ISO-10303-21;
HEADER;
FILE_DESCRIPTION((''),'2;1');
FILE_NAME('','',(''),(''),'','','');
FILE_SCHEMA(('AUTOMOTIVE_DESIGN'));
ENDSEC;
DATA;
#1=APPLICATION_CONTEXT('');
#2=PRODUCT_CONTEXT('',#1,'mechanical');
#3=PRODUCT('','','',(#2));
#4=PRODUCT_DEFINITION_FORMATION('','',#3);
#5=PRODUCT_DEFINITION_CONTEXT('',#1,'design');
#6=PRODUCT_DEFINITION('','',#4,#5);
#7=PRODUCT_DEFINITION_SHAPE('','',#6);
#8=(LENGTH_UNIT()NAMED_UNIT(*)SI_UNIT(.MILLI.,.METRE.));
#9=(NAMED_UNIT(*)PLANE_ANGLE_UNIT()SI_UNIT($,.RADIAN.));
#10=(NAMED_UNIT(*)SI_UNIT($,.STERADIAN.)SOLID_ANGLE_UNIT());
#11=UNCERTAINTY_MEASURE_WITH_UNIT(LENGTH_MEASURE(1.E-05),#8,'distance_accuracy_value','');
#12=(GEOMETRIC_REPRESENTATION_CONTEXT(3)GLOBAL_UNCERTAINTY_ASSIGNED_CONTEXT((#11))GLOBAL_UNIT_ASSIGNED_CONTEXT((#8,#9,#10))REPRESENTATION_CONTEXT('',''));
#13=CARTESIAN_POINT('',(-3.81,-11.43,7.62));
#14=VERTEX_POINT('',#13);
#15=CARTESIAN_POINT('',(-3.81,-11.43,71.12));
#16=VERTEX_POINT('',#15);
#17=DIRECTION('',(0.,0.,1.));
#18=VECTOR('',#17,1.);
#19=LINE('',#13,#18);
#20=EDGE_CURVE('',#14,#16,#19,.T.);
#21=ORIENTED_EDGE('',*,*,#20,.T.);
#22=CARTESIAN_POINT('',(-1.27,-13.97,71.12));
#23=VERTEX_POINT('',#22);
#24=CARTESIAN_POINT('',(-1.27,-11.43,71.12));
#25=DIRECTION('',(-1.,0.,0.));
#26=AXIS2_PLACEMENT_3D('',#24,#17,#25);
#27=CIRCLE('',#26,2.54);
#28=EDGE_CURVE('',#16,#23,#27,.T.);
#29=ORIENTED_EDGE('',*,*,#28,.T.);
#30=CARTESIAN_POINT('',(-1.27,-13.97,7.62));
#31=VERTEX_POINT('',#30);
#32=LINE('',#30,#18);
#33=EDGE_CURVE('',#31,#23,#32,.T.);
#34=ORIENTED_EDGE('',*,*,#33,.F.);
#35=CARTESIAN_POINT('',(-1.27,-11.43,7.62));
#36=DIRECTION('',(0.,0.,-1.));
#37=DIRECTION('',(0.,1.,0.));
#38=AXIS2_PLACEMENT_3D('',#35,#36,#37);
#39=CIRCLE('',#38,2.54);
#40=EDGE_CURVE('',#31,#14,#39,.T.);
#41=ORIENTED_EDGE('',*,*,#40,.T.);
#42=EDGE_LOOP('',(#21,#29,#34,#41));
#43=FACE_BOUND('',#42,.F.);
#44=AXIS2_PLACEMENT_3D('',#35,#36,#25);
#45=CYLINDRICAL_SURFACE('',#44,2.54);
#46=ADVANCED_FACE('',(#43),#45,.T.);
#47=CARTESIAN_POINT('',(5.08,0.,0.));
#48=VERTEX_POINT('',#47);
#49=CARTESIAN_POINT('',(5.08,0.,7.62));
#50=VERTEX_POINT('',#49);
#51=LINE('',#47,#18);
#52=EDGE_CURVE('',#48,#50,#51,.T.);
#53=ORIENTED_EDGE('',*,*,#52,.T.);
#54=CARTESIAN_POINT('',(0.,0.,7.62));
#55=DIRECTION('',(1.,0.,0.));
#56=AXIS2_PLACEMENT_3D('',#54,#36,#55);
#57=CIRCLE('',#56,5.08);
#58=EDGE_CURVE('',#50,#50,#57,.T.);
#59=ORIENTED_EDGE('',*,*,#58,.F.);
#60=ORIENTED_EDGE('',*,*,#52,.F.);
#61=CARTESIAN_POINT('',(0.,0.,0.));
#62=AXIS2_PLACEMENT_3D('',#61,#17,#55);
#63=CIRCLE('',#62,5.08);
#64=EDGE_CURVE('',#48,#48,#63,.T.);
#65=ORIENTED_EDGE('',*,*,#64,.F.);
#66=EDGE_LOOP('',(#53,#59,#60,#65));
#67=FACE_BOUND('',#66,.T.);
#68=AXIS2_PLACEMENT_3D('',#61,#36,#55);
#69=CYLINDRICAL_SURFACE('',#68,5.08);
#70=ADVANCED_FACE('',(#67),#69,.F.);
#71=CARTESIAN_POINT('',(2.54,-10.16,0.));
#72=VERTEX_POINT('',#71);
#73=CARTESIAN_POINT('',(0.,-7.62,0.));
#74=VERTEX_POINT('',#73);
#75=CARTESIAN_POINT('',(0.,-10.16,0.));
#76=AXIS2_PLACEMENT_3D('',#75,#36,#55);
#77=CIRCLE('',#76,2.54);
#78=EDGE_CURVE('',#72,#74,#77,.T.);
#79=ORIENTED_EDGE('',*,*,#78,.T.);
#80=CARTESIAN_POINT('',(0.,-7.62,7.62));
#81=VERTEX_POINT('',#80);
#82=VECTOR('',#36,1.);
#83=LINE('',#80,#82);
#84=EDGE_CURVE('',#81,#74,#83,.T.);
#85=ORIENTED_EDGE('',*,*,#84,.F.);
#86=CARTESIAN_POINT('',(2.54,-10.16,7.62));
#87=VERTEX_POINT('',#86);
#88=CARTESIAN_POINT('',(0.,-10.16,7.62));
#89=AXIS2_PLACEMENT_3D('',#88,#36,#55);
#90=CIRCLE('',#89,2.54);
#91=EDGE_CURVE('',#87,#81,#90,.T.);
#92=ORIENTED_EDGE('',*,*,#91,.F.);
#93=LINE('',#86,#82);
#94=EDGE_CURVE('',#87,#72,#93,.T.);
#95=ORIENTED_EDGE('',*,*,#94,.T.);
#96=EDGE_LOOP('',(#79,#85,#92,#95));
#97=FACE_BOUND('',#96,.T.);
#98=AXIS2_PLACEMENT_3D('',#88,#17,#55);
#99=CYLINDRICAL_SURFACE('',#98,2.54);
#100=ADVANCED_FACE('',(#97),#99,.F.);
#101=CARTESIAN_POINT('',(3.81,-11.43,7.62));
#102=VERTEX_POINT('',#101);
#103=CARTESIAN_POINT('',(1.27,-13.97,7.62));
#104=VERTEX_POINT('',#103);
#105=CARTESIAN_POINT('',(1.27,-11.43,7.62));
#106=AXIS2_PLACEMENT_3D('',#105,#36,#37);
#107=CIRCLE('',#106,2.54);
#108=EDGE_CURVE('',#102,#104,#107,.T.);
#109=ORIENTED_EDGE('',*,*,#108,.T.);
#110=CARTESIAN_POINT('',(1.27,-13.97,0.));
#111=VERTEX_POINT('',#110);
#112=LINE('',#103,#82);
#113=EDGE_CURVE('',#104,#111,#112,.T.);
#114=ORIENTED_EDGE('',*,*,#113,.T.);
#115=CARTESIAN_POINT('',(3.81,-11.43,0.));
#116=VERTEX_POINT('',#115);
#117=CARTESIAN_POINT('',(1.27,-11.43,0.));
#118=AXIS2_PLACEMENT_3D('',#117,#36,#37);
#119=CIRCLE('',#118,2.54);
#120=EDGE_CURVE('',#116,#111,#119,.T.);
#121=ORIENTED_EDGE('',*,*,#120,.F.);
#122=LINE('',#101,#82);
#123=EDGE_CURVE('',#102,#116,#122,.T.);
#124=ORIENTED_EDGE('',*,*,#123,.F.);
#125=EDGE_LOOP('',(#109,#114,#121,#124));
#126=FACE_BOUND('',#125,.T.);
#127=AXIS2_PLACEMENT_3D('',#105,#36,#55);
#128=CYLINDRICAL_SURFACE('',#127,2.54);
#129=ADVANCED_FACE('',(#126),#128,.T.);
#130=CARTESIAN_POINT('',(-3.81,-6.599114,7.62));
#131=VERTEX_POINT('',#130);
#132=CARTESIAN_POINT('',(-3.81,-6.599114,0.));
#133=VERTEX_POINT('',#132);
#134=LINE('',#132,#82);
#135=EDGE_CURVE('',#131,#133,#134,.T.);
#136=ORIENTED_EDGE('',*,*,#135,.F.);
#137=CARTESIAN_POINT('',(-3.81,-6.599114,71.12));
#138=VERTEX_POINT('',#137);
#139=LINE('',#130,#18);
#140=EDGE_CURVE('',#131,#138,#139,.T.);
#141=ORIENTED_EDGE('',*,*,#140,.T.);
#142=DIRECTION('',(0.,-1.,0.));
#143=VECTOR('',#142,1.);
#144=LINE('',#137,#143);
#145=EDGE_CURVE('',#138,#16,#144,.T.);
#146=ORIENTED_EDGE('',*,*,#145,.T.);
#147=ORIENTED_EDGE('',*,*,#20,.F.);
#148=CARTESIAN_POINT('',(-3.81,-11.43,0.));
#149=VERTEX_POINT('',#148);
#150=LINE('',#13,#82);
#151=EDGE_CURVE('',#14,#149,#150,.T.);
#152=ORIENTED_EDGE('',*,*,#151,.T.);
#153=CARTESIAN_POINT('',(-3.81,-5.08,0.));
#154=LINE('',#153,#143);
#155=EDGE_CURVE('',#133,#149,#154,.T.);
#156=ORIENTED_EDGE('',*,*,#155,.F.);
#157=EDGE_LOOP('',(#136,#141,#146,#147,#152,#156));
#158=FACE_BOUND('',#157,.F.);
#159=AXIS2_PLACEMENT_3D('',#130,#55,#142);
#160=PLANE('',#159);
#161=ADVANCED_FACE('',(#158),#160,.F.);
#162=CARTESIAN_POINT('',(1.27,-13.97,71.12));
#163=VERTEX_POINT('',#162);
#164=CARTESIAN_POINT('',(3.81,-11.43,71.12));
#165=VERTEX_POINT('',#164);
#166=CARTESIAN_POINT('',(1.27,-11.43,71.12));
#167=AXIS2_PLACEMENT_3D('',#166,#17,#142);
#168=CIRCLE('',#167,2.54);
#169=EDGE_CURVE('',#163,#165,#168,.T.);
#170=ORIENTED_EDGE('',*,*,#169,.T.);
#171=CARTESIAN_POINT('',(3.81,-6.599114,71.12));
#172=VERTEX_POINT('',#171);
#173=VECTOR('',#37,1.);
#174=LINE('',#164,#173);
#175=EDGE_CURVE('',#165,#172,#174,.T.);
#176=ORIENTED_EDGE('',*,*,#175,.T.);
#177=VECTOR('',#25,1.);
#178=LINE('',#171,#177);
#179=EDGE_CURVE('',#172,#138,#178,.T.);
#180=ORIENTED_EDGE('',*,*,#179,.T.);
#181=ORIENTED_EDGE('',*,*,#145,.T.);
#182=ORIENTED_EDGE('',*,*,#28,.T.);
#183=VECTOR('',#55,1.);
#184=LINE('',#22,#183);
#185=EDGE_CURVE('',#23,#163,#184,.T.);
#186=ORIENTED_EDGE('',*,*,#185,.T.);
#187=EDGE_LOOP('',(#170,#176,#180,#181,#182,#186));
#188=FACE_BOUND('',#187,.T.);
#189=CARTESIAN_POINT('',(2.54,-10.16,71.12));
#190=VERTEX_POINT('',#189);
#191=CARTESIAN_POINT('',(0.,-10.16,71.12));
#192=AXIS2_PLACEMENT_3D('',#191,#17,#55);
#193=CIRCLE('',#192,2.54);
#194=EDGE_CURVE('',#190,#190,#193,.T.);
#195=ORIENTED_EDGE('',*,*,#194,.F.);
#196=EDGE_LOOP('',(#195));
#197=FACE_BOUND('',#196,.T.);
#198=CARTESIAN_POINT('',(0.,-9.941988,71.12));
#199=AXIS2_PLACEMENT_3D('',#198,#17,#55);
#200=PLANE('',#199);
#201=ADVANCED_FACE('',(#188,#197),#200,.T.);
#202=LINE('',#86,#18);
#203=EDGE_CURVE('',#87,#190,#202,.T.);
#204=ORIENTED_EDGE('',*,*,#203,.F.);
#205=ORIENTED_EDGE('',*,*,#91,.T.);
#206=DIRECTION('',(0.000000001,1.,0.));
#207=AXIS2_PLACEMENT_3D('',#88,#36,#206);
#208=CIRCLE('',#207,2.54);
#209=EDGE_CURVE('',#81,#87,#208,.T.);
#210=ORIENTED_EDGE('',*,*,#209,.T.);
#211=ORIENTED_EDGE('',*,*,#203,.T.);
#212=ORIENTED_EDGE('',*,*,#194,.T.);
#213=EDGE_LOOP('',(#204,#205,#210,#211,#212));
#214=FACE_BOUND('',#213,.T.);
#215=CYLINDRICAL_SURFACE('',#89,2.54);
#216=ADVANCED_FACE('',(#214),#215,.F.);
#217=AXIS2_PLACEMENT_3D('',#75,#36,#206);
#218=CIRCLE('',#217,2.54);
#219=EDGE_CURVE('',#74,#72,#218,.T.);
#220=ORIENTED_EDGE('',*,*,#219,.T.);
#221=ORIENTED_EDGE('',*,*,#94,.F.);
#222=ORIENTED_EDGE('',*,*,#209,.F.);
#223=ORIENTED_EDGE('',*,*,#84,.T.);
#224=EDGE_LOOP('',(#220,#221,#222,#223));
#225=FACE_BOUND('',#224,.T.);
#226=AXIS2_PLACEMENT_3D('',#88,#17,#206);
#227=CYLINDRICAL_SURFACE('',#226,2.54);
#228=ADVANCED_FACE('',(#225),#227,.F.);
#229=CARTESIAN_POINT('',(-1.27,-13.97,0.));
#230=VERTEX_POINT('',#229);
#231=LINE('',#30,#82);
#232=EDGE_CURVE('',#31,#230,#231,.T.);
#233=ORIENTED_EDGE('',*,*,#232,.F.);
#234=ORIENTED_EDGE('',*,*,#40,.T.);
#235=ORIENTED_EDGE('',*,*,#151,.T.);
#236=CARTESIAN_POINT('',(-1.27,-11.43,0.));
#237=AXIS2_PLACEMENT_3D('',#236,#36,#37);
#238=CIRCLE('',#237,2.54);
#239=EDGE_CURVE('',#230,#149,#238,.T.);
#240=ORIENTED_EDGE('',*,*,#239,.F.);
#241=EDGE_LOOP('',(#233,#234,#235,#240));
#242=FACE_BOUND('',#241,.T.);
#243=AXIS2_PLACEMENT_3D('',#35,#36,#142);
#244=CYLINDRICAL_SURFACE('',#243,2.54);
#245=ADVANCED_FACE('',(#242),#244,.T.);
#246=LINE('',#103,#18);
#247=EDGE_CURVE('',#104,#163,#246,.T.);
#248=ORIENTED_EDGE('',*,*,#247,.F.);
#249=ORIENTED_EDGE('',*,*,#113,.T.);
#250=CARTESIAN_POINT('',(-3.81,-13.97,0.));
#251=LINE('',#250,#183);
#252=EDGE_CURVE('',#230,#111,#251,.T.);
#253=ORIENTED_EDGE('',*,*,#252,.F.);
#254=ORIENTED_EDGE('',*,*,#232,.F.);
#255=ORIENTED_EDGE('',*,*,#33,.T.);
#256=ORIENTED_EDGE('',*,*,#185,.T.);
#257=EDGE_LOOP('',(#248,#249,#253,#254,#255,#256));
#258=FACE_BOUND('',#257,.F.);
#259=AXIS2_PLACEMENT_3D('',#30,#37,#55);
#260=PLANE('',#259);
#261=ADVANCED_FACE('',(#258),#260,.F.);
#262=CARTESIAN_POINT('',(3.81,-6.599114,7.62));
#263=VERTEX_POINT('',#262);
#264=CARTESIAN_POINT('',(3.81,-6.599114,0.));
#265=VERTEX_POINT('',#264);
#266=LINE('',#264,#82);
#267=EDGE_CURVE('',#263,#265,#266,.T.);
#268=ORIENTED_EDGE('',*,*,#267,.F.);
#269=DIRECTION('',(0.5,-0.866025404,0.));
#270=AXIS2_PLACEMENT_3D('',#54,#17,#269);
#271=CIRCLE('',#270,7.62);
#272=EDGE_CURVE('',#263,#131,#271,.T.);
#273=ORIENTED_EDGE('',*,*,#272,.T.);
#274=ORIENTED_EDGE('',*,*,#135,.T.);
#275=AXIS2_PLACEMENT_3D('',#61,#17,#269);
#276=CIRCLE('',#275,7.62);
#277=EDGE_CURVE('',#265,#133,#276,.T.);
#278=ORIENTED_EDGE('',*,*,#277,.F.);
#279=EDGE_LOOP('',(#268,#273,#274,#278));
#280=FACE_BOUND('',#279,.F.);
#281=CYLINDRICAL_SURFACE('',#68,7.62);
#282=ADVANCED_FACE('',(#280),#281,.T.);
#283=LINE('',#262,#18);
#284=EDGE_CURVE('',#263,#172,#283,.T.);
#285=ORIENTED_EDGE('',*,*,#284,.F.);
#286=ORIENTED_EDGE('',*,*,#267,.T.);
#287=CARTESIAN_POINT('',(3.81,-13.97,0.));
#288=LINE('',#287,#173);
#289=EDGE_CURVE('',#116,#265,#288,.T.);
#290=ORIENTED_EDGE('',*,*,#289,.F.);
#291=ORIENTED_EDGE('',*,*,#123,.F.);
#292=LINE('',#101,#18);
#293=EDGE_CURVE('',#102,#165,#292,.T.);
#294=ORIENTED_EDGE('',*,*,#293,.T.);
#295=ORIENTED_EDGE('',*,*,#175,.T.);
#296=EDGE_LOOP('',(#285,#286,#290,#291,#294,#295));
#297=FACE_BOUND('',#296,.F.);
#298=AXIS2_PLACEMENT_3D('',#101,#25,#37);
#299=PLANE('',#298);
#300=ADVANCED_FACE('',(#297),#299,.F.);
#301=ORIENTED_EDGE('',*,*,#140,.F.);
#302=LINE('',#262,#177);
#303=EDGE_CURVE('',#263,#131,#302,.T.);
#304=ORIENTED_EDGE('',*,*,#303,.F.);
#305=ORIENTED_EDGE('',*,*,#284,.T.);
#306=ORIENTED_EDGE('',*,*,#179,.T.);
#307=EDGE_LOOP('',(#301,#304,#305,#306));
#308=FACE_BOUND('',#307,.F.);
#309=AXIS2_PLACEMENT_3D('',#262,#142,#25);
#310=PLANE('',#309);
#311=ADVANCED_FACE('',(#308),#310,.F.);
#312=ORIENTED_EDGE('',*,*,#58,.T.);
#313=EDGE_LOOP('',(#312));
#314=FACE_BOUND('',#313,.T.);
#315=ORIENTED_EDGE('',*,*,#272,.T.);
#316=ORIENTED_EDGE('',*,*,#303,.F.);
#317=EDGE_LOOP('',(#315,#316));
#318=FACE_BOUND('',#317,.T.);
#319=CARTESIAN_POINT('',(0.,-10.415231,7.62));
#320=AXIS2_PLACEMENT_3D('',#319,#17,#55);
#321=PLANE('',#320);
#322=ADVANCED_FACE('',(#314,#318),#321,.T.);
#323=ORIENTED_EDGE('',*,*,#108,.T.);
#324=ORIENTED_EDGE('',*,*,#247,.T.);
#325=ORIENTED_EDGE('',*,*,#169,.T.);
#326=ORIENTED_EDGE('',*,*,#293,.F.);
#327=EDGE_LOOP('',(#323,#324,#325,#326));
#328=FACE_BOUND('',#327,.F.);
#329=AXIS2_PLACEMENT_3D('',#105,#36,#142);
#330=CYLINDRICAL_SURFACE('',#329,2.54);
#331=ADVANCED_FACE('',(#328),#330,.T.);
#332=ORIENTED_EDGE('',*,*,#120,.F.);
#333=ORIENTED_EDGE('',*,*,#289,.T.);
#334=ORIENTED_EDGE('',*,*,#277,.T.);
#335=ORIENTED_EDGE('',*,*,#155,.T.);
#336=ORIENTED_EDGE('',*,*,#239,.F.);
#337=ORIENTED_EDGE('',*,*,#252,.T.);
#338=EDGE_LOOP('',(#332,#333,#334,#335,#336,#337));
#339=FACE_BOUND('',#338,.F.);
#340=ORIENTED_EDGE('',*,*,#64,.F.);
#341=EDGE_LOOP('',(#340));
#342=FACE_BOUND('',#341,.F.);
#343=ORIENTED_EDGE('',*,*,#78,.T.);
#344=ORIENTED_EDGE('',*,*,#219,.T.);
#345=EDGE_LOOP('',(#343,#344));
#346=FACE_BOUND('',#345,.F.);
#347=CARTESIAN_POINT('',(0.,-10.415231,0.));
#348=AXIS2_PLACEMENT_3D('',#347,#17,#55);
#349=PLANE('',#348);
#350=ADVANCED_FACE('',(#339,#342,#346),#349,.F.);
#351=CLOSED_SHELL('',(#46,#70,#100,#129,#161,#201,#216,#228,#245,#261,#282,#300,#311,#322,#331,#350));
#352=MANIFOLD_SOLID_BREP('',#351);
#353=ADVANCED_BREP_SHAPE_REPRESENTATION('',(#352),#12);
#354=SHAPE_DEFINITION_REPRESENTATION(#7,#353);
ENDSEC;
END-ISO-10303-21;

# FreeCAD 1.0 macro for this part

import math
import FreeCAD as App
import Part
import Sketcher

V = App.Vector
Q = App.Units.Quantity


def edges_at(feature, points):
    """Names of the edges that pass closest to the given points."""
    edges = feature.Shape.Edges
    near = lambda p: min(range(len(edges)), key=lambda i: edges[i].distToShape(Part.Vertex(*p))[0])
    return sorted({f"Edge{near(p) + 1}" for p in points})

doc = App.newDocument("Part")
params = doc.addObject("Spreadsheet::Sheet", "Params")
for row, (alias, value) in enumerate([
    ("sketch1_diameter", "0.6 in"),
    ("sketch1_diameter2", "0.4 in"),
    ("pad1_length", "0.3 in"),
    ("sketch2_radius", "0.1 in"),
    ("sketch2_width", "0.3 in"),
    ("sketch2_height", "0.35 in"),
    ("pad2_length", "0.3 in"),
    ("fillet_radius", "0.1 in"),
    ("sketch3_diameter", "0.2 in"),
    ("sketch3_width", "0.3 in"),
    ("pad3_length", "2.5 in"),
], start=1):
    params.set(f"A{row}", alias)
    params.set(f"B{row}", "=" + value)
    params.setAlias(f"B{row}", alias)

body = doc.addObject("PartDesign::Body", "Body")

# Sketch on XY plane
sketch1 = body.newObject("Sketcher::SketchObject", "Sketch")
sketch1.AttachmentSupport = (doc.getObject("XY_Plane"), [""])
sketch1.MapMode = "FlatFace"
sketch1.addGeometry([
    Part.Circle(V(0, 0, 0), V(0, 0, 1), 8),
    Part.Circle(V(0, 0, 0), V(0, 0, 1), 5),
], False)
sketch1.addConstraint([
    Sketcher.Constraint("Coincident", 0, 3, -1, 1),
    Sketcher.Constraint("Coincident", 1, 3, -1, 1),
    Sketcher.Constraint("Diameter", 0, Q("0.6 in")),
    Sketcher.Constraint("Diameter", 1, Q("0.4 in")),
])
sketch1.setExpression("Constraints[2]", "Params.sketch1_diameter")
sketch1.setExpression("Constraints[3]", "Params.sketch1_diameter2")
pad1 = body.newObject("PartDesign::Pad", "Pad")
pad1.Profile = sketch1
pad1.setExpression("Length", "Params.pad1_length")

# Sketch on XY plane
sketch2 = body.newObject("Sketcher::SketchObject", "Sketch001")
sketch2.AttachmentSupport = (doc.getObject("XY_Plane"), [""])
sketch2.MapMode = "FlatFace"
sketch2.AttachmentOffset = App.Placement(V(0, 0, 0.3 * 25.4), App.Rotation())
sketch2.addGeometry([
    Part.LineSegment(V(3.8, -14, 0), V(3.8, -5.1, 0)),  # 0
    Part.LineSegment(V(3.8, -5.1, 0), V(-3.8, -5.1, 0)),  # 1
    Part.LineSegment(V(-3.8, -5.1, 0), V(-3.8, -14, 0)),  # 2
    Part.LineSegment(V(-3.8, -14, 0), V(3.8, -14, 0)),  # 3
    Part.ArcOfCircle(Part.Circle(V(0, -10.2, 0), V(0, 0, 1), 2.5), math.radians(90), math.radians(360)),  # 4
    Part.ArcOfCircle(Part.Circle(V(0, -10.2, 0), V(0, 0, 1), 2.5), math.radians(0), math.radians(90)),  # 5
], False)
sketch2.addConstraint([
    Sketcher.Constraint("Coincident", 0, 2, 1, 1),
    Sketcher.Constraint("Coincident", 1, 2, 2, 1),
    Sketcher.Constraint("Coincident", 2, 2, 3, 1),
    Sketcher.Constraint("Coincident", 3, 2, 0, 1),
    Sketcher.Constraint("Tangent", 4, 1, 5, 2),
    Sketcher.Constraint("Coincident", 5, 1, 4, 2),
    Sketcher.Constraint("Vertical", 0),
    Sketcher.Constraint("Horizontal", 1),
    Sketcher.Constraint("Vertical", 2),
    Sketcher.Constraint("Horizontal", 3),
    Sketcher.Constraint("PointOnObject", 4, 3, -2),
    Sketcher.Constraint("PointOnObject", 4, 1, -2),
    Sketcher.Constraint("Horizontal", 4, 3, 5, 1),
    Sketcher.Constraint("Radius", 4, Q("0.1 in")),
    Sketcher.Constraint("DistanceX", 1, 2, 1, 1, Q("0.3 in")),
    Sketcher.Constraint("DistanceY", 0, 1, 0, 2, Q("0.35 in")),
    Sketcher.Constraint("DistanceY", 4, 3, -1, 1, Q("0.4 in")),
    Sketcher.Constraint("DistanceY", 0, 2, -1, 1, Q("0.2 in")),
    Sketcher.Constraint("DistanceX", -1, 1, 0, 2, Q("0.15 in")),
])
sketch2.setExpression("Constraints[13]", "Params.sketch2_radius")
sketch2.setExpression("Constraints[14]", "Params.sketch2_width")
sketch2.setExpression("Constraints[15]", "Params.sketch2_height")
pad2 = body.newObject("PartDesign::Pad", "Pad001")
pad2.Profile = sketch2
pad2.setExpression("Length", "Params.pad2_length")
pad2.Reversed = True
doc.recompute()

fillet = body.newObject("PartDesign::Fillet", "Fillet")
fillet.Base = (pad2, edges_at(pad2, [(3.81, -13.97, 3.81), (-3.81, -13.97, 3.81)]))
fillet.setExpression("Radius", "Params.fillet_radius")

# Sketch on XY plane
sketch3 = body.newObject("Sketcher::SketchObject", "Sketch002")
sketch3.AttachmentSupport = (doc.getObject("XY_Plane"), [""])
sketch3.MapMode = "FlatFace"
sketch3.AttachmentOffset = App.Placement(V(0, 0, 0.3 * 25.4), App.Rotation())
sketch3.addGeometry([
    Part.LineSegment(V(3.8, -6.6, 0), V(-3.8, -6.6, 0)),  # 0
    Part.LineSegment(V(-3.8, -6.6, 0), V(-3.8, -11.4, 0)),  # 1
    Part.ArcOfCircle(Part.Circle(V(-1.3, -11.4, 0), V(0, 0, 1), 2.5), math.radians(180), math.radians(270)),  # 2
    Part.LineSegment(V(-1.3, -14, 0), V(1.3, -14, 0)),  # 3
    Part.ArcOfCircle(Part.Circle(V(1.3, -11.4, 0), V(0, 0, 1), 2.5), math.radians(-90), math.radians(0)),  # 4
    Part.LineSegment(V(3.8, -11.4, 0), V(3.8, -6.6, 0)),  # 5
    Part.Circle(V(0, -10.2, 0), V(0, 0, 1), 2.5),  # 6
], False)
sketch3.addConstraint([
    Sketcher.Constraint("Coincident", 0, 2, 1, 1),
    Sketcher.Constraint("Tangent", 1, 2, 2, 1),
    Sketcher.Constraint("Tangent", 2, 2, 3, 1),
    Sketcher.Constraint("Tangent", 3, 2, 4, 1),
    Sketcher.Constraint("Tangent", 4, 2, 5, 1),
    Sketcher.Constraint("Coincident", 5, 2, 0, 1),
    Sketcher.Constraint("Horizontal", 0),
    Sketcher.Constraint("Vertical", 1),
    Sketcher.Constraint("Horizontal", 3),
    Sketcher.Constraint("Vertical", 5),
    Sketcher.Constraint("Equal", 2, 4),
    Sketcher.Constraint("Equal", 4, 6),
    Sketcher.Constraint("PointOnObject", 6, 3, -2),
    Sketcher.Constraint("Diameter", 6, Q("0.2 in")),
    Sketcher.Constraint("DistanceX", 0, 2, 0, 1, Q("0.3 in")),
    Sketcher.Constraint("DistanceY", 6, 3, -1, 1, Q("0.4 in")),
    Sketcher.Constraint("DistanceX", 2, 3, -1, 1, Q("0.05 in")),
    Sketcher.Constraint("DistanceY", 2, 3, -1, 1, Q("0.45 in")),
    Sketcher.Constraint("DistanceY", 1, 2, 1, 1, Q("4.830886 mm")),
])
sketch3.setExpression("Constraints[13]", "Params.sketch3_diameter")
sketch3.setExpression("Constraints[14]", "Params.sketch3_width")
pad3 = body.newObject("PartDesign::Pad", "Pad002")
pad3.Profile = sketch3
pad3.setExpression("Length", "Params.pad3_length")

doc.recompute()
